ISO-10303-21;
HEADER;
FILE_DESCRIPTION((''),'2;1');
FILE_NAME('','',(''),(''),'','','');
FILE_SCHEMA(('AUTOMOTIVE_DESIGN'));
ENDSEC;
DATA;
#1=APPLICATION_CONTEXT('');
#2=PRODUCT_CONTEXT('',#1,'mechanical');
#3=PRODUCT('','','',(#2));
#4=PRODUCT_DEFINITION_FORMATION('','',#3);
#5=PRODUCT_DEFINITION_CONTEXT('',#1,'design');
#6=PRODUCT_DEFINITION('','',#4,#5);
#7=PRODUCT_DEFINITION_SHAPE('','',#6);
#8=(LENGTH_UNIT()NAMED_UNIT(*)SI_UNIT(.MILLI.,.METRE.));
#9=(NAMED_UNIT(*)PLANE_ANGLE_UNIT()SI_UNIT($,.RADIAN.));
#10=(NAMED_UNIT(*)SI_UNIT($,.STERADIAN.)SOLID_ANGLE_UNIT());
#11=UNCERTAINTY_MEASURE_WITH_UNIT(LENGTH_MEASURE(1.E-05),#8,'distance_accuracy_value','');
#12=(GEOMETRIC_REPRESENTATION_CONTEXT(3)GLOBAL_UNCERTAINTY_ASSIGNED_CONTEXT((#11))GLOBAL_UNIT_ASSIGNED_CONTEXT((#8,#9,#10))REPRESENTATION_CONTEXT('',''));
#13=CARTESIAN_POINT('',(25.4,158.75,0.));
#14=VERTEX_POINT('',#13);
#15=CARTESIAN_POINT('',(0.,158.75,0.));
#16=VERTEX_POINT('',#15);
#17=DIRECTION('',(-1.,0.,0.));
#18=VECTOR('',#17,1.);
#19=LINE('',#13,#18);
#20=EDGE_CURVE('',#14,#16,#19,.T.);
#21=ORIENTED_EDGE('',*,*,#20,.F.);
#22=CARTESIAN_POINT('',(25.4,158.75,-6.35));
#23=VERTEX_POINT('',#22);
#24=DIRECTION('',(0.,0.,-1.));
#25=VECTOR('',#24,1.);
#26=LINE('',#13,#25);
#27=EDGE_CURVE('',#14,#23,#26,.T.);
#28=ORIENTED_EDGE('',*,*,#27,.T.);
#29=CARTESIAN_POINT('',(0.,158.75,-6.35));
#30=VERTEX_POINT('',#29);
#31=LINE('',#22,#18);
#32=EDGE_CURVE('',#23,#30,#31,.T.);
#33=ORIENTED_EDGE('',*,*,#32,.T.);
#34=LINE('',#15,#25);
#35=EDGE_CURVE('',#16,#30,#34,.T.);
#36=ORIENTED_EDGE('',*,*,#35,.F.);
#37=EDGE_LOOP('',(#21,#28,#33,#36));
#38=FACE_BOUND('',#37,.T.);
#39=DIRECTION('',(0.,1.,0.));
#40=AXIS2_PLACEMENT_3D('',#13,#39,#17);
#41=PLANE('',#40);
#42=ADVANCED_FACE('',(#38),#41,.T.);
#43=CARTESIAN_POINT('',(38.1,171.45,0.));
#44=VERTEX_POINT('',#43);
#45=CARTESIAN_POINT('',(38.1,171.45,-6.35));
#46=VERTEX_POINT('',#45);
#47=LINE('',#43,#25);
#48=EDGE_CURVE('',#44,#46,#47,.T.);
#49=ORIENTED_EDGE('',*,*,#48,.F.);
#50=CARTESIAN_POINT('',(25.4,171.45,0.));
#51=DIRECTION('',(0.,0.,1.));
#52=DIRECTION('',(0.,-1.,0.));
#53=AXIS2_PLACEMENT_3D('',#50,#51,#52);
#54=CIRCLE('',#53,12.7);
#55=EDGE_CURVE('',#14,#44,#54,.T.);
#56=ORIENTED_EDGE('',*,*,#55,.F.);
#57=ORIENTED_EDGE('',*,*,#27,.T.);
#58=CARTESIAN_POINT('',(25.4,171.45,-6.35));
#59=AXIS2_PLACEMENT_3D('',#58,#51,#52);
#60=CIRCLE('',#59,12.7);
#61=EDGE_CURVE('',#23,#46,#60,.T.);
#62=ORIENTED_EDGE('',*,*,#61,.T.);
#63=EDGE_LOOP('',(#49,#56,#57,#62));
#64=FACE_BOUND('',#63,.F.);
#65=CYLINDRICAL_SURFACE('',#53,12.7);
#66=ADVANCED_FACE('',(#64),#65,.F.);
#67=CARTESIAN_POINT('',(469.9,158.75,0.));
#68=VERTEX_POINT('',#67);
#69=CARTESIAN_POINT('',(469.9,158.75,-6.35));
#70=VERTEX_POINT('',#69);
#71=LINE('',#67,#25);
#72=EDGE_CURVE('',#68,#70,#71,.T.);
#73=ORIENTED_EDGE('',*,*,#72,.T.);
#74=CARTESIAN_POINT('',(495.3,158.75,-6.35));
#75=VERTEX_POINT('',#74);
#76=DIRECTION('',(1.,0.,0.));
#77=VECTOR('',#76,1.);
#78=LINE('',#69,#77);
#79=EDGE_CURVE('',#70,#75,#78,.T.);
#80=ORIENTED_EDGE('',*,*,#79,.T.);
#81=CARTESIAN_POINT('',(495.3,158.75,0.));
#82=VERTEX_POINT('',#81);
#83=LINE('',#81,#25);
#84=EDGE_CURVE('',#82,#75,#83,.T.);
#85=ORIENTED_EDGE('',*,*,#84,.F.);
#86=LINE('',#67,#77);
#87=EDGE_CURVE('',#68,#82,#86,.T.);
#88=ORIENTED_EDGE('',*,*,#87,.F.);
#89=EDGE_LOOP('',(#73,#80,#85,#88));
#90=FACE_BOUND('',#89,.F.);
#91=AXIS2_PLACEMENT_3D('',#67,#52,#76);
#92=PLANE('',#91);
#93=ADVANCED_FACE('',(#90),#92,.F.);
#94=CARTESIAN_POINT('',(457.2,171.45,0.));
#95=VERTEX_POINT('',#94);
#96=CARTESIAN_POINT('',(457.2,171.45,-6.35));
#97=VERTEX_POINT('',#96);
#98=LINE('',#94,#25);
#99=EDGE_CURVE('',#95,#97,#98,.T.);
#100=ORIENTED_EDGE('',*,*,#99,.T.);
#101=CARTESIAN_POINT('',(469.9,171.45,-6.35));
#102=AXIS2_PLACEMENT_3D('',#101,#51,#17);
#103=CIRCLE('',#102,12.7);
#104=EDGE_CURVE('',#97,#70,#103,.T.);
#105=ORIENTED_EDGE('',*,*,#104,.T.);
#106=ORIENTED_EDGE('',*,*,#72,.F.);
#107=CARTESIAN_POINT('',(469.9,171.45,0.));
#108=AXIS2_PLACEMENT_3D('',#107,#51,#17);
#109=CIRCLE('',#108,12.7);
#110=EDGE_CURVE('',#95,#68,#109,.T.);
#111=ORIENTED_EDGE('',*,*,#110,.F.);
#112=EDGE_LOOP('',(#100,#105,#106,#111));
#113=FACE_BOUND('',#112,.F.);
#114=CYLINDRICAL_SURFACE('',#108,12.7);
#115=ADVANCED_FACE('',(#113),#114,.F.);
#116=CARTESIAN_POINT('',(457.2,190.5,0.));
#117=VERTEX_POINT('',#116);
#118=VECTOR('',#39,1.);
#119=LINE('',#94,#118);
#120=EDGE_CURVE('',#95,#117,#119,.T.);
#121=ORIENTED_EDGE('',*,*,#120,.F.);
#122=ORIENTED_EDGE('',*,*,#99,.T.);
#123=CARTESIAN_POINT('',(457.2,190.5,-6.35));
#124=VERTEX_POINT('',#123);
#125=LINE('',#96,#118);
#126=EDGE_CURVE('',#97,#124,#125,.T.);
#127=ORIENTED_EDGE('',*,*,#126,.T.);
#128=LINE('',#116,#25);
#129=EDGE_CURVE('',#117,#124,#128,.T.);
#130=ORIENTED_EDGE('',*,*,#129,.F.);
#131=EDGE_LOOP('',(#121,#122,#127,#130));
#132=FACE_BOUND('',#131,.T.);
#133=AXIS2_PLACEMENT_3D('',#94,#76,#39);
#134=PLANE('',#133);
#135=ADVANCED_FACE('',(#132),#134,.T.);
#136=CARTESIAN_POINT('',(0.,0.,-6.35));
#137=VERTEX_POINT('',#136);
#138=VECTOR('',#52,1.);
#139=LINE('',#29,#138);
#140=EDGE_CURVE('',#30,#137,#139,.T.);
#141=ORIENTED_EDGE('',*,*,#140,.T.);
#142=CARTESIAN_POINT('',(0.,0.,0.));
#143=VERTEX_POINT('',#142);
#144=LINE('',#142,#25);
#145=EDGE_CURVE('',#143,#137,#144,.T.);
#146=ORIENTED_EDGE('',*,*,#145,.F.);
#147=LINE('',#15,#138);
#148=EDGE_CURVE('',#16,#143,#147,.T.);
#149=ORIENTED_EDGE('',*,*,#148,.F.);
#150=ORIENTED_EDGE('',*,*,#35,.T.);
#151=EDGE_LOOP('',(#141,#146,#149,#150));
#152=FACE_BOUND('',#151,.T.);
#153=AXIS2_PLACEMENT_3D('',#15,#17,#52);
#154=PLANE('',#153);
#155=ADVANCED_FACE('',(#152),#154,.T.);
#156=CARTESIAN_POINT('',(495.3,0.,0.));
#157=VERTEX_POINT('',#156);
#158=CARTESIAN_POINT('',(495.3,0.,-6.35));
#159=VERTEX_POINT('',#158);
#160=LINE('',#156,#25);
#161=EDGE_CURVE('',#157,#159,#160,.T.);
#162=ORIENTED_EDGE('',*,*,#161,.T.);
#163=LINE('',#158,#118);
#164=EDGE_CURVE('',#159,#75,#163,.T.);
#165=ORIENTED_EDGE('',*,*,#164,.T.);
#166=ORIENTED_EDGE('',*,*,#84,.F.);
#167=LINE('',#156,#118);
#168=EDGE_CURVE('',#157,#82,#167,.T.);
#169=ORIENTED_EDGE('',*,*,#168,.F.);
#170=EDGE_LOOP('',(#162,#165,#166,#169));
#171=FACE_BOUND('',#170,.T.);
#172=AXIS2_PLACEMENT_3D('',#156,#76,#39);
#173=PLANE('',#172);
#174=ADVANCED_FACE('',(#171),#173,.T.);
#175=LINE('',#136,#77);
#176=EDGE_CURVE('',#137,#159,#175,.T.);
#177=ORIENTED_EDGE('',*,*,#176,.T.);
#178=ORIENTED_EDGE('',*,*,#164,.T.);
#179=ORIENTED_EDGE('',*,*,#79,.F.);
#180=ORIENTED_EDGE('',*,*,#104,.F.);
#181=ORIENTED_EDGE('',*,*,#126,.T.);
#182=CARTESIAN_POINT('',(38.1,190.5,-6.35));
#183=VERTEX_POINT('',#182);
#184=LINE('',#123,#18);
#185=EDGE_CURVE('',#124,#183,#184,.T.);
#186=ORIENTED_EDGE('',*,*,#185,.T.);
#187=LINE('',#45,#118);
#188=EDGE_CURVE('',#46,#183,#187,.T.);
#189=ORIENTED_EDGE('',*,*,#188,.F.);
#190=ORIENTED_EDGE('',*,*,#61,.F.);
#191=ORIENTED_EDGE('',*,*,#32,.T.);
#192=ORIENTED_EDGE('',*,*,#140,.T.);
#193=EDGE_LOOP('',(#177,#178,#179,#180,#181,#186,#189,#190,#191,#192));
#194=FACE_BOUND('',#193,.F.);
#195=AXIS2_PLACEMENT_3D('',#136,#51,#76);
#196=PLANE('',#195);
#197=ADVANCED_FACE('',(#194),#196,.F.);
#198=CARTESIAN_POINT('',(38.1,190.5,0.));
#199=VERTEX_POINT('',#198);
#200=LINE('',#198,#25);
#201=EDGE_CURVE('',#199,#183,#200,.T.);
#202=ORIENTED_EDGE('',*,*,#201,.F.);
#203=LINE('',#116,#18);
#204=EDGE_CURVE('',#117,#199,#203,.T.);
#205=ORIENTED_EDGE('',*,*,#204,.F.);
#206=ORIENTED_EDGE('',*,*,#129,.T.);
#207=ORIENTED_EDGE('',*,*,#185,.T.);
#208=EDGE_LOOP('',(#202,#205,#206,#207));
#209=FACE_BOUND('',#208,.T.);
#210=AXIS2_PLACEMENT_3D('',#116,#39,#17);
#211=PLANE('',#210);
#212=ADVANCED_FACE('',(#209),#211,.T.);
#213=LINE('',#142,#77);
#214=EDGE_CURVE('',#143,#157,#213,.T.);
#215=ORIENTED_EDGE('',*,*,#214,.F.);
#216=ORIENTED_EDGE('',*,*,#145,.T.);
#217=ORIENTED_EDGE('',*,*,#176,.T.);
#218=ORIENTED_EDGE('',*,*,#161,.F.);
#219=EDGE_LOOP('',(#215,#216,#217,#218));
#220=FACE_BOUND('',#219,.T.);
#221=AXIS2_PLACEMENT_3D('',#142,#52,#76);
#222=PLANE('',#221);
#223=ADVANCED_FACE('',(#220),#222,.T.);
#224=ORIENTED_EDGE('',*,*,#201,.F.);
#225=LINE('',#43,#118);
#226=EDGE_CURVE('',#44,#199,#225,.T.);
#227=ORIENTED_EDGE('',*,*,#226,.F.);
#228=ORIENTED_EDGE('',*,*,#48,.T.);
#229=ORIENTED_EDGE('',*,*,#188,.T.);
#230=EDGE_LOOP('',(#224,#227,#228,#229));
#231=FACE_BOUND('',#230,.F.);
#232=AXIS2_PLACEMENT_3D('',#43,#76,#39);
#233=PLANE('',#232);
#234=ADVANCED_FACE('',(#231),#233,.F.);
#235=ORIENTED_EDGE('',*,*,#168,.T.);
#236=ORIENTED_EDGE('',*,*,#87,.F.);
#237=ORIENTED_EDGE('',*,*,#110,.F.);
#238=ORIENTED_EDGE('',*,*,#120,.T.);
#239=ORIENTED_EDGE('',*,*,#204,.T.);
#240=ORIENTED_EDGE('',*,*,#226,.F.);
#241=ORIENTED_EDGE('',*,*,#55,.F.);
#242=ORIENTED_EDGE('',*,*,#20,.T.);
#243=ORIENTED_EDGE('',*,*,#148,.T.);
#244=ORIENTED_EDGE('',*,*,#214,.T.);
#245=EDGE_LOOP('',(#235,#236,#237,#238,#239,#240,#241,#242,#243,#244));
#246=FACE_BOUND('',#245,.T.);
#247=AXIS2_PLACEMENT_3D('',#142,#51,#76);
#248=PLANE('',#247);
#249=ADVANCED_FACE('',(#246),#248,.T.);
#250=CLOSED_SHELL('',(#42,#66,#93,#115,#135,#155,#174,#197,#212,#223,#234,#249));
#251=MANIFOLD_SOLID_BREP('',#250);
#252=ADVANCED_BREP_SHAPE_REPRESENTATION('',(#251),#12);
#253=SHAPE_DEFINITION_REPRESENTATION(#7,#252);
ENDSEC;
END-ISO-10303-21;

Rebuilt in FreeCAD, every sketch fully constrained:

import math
import FreeCAD as App
import Part
import Sketcher
from FreeCAD import Vector
Q = App.Units.Quantity

doc = App.newDocument("Part")
body = doc.addObject("PartDesign::Body", "Body")

# Sketch on XY plane
sketch1 = body.newObject("Sketcher::SketchObject", "Sketch")
sketch1.AttachmentSupport = (doc.getObject("XY_Plane"), [""])
sketch1.MapMode = "FlatFace"
sketch1.addGeometry([
    Part.LineSegment(Vector(0, 159, 0), Vector(0, 0, 0)),  # 0
    Part.LineSegment(Vector(0, 0, 0), Vector(495, 0, 0)),  # 1
    Part.LineSegment(Vector(495, 0, 0), Vector(495, 159, 0)),  # 2
    Part.LineSegment(Vector(495, 159, 0), Vector(470, 159, 0)),  # 3
    Part.ArcOfCircle(Part.Circle(Vector(470, 171, 0), Vector(0, 0, 1), 13), math.radians(180), math.radians(270)),  # 4
    Part.LineSegment(Vector(457, 171, 0), Vector(457, 190, 0)),  # 5
    Part.LineSegment(Vector(457, 190, 0), Vector(38, 190, 0)),  # 6
    Part.LineSegment(Vector(38, 190, 0), Vector(38, 171, 0)),  # 7
    Part.ArcOfCircle(Part.Circle(Vector(25, 171, 0), Vector(0, 0, 1), 13), math.radians(-90), math.radians(0)),  # 8
    Part.LineSegment(Vector(25, 159, 0), Vector(0, 159, 0)),  # 9
], False)
sketch1.addConstraint([
    Sketcher.Constraint("Coincident", 0, 2, 1, 1),
    Sketcher.Constraint("Coincident", 1, 2, 2, 1),
    Sketcher.Constraint("Coincident", 2, 2, 3, 1),
    Sketcher.Constraint("Tangent", 3, 2, 4, 2),
    Sketcher.Constraint("Tangent", 4, 1, 5, 1),
    Sketcher.Constraint("Coincident", 5, 2, 6, 1),
    Sketcher.Constraint("Coincident", 6, 2, 7, 1),
    Sketcher.Constraint("Tangent", 7, 2, 8, 2),
    Sketcher.Constraint("Tangent", 8, 1, 9, 1),
    Sketcher.Constraint("Coincident", 9, 2, 0, 1),
    Sketcher.Constraint("Vertical", 0),
    Sketcher.Constraint("Horizontal", 1),
    Sketcher.Constraint("Vertical", 2),
    Sketcher.Constraint("Horizontal", 3),
    Sketcher.Constraint("Vertical", 5),
    Sketcher.Constraint("Horizontal", 6),
    Sketcher.Constraint("Vertical", 7),
    Sketcher.Constraint("Horizontal", 9),
    Sketcher.Constraint("Coincident", 0, 2, -1, 1),
    Sketcher.Constraint("Equal", 4, 8),
    Sketcher.Constraint("Horizontal", 4, 3, 8, 3),
    Sketcher.Constraint("Equal", 3, 9),
    Sketcher.Constraint("Radius", 4, Q("0.5 in")),
    Sketcher.Constraint("DistanceX", 3, 2, 3, 1, Q("1 in")),
    Sketcher.Constraint("DistanceX", 1, 1, 1, 2, Q("19.5 in")),
    Sketcher.Constraint("DistanceY", 5, 1, 5, 2, Q("0.75 in")),
    Sketcher.Constraint("DistanceY", -1, 1, 5, 2, Q("7.5 in")),
])
pad1 = body.newObject("PartDesign::Pad", "Pad")
pad1.Profile = sketch1
pad1.Length = Q("0.25 in")
pad1.Reversed = True

doc.recompute()
